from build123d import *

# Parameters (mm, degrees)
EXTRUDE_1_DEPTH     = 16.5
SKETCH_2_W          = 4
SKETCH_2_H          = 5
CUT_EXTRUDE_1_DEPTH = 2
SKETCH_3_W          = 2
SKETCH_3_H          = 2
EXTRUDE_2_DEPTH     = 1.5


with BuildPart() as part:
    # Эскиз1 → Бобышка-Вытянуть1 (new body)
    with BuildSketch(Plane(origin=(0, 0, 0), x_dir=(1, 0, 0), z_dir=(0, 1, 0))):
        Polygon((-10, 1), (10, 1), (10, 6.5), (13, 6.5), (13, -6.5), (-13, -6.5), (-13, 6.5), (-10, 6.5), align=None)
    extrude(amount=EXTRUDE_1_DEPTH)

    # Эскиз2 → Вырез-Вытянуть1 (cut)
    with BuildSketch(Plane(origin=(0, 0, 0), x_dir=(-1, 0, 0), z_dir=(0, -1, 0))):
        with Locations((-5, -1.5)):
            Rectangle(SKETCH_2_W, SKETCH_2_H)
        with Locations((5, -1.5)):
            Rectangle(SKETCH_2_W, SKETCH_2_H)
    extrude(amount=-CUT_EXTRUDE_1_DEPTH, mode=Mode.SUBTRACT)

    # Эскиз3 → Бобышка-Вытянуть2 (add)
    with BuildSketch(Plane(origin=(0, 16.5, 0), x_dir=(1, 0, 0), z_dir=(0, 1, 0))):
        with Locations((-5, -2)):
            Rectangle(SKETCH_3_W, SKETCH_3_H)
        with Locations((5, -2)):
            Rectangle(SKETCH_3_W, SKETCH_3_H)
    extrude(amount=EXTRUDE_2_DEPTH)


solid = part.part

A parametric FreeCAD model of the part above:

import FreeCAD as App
import Part
import Sketcher

V = App.Vector


def add_polygon(sketch, points):
    """Adds a closed chain of lines whose ends are joined by coincident constraints."""
    first, n = sketch.GeometryCount, len(points)
    for a, b in zip(points, points[1:] + points[:1]):
        sketch.addGeometry(Part.LineSegment(App.Vector(*a, 0), App.Vector(*b, 0)), False)
    for i in range(n):
        sketch.addConstraint(Sketcher.Constraint("Coincident", first + i, 2, first + (i + 1) % n, 1))

doc = App.newDocument("Part")
params = doc.addObject("Spreadsheet::Sheet", "Params")
for row, (alias, value) in enumerate([
    ("sketch1_width", "20 mm"),
    ("sketch1_width2", "3 mm"),
    ("sketch1_height", "13 mm"),
    ("sketch1_height2", "5.5 mm"),
    ("pad1_length", "16.5 mm"),
    ("sketch2_width", "4 mm"),
    ("sketch2_height", "5 mm"),
    ("pocket1_length", "2 mm"),
    ("sketch3_width", "2 mm"),
    ("pad2_length", "1.5 mm"),
], start=1):
    params.set(f"A{row}", alias)
    params.set(f"B{row}", "=" + value)
    params.setAlias(f"B{row}", alias)

body = doc.addObject("PartDesign::Body", "Body")

# Sketch on XZ plane
sketch1 = body.newObject("Sketcher::SketchObject", "Sketch")
sketch1.AttachmentSupport = (doc.getObject("XZ_Plane"), [""])
sketch1.MapMode = "FlatFace"
add_polygon(sketch1, [(10, -1), (-10, -1), (-10, -6.5), (-13, -6.5), (-13, 6.5), (13, 6.5), (13, -6.5), (10, -6.5)])  # lines 0-7
sketch1.addConstraint([
    Sketcher.Constraint("Horizontal", 0),
    Sketcher.Constraint("Vertical", 1),
    Sketcher.Constraint("Horizontal", 2),
    Sketcher.Constraint("Vertical", 3),
    Sketcher.Constraint("Horizontal", 4),
    Sketcher.Constraint("Vertical", 5),
    Sketcher.Constraint("Horizontal", 6),
    Sketcher.Constraint("Vertical", 7),
    Sketcher.Constraint("Symmetric", 2, 2, 4, 2, -1, 1),
    Sketcher.Constraint("Symmetric", 1, 2, 6, 2, -2),
    Sketcher.Constraint("DistanceX", 0, 2, 0, 1, 20.0),
    Sketcher.Constraint("DistanceX", 2, 2, 2, 1, 3.0),
    Sketcher.Constraint("DistanceY", 3, 1, 3, 2, 13.0),
    Sketcher.Constraint("DistanceY", 1, 2, 1, 1, 5.5),
])
sketch1.setExpression("Constraints[18]", "Params.sketch1_width")
sketch1.setExpression("Constraints[19]", "Params.sketch1_width2")
sketch1.setExpression("Constraints[20]", "Params.sketch1_height")
sketch1.setExpression("Constraints[21]", "Params.sketch1_height2")
pad1 = body.newObject("PartDesign::Pad", "Pad")
pad1.Profile = sketch1
pad1.setExpression("Length", "Params.pad1_length")
pad1.Reversed = True

# Sketch on XZ plane
sketch2 = body.newObject("Sketcher::SketchObject", "Sketch001")
sketch2.AttachmentSupport = (doc.getObject("XZ_Plane"), [""])
sketch2.MapMode = "FlatFace"
add_polygon(sketch2, [(7, -1), (7, 4), (3, 4), (3, -1)])  # lines 0-3
add_polygon(sketch2, [(-3, -1), (-3, 4), (-7, 4), (-7, -1)])  # lines 4-7
sketch2.addConstraint([
    Sketcher.Constraint("Vertical", 0),
    Sketcher.Constraint("Horizontal", 1),
    Sketcher.Constraint("Vertical", 2),
    Sketcher.Constraint("Horizontal", 3),
    Sketcher.Constraint("Vertical", 4),
    Sketcher.Constraint("Horizontal", 5),
    Sketcher.Constraint("Vertical", 6),
    Sketcher.Constraint("Horizontal", 7),
    Sketcher.Constraint("Symmetric", 1, 2, 4, 2, -2),
    Sketcher.Constraint("Symmetric", 3, 2, 6, 2, -2),
    Sketcher.Constraint("DistanceX", 1, 2, 1, 1, 4.0),
    Sketcher.Constraint("DistanceY", 0, 1, 0, 2, 5.0),
    Sketcher.Constraint("DistanceX", -1, 1, 0, 2, 7.0),
    Sketcher.Constraint("DistanceY", -1, 1, 0, 2, 4.0),
])
sketch2.setExpression("Constraints[18]", "Params.sketch2_width")
sketch2.setExpression("Constraints[19]", "Params.sketch2_height")
pocket1 = body.newObject("PartDesign::Pocket", "Pocket")
pocket1.Profile = sketch2
pocket1.setExpression("Length", "Params.pocket1_length")

# Sketch on XZ plane
sketch3 = body.newObject("Sketcher::SketchObject", "Sketch002")
sketch3.AttachmentSupport = (doc.getObject("XZ_Plane"), [""])
sketch3.MapMode = "FlatFace"
sketch3.AttachmentOffset = App.Placement(V(0, 0, -16.5), App.Rotation())
add_polygon(sketch3, [(-6, 1), (-6, 3), (-4, 3), (-4, 1)])  # lines 0-3
add_polygon(sketch3, [(4, 1), (4, 3), (6, 3), (6, 1)])  # lines 4-7
sketch3.addConstraint([
    Sketcher.Constraint("Vertical", 0),
    Sketcher.Constraint("Horizontal", 1),
    Sketcher.Constraint("Vertical", 2),
    Sketcher.Constraint("Horizontal", 3),
    Sketcher.Constraint("Vertical", 4),
    Sketcher.Constraint("Horizontal", 5),
    Sketcher.Constraint("Vertical", 6),
    Sketcher.Constraint("Horizontal", 7),
    Sketcher.Constraint("Symmetric", 1, 2, 4, 2, -2),
    Sketcher.Constraint("Symmetric", 3, 2, 6, 2, -2),
    Sketcher.Constraint("Equal", 7, 0),
    Sketcher.Constraint("DistanceX", 1, 1, 1, 2, 2.0),
    Sketcher.Constraint("DistanceX", 0, 2, -1, 1, 6.0),
    Sketcher.Constraint("DistanceY", -1, 1, 0, 2, 3.0),
])
sketch3.setExpression("Constraints[19]", "Params.sketch3_width")
pad2 = body.newObject("PartDesign::Pad", "Pad001")
pad2.Profile = sketch3
pad2.setExpression("Length", "Params.pad2_length")
pad2.Reversed = True

doc.recompute()
